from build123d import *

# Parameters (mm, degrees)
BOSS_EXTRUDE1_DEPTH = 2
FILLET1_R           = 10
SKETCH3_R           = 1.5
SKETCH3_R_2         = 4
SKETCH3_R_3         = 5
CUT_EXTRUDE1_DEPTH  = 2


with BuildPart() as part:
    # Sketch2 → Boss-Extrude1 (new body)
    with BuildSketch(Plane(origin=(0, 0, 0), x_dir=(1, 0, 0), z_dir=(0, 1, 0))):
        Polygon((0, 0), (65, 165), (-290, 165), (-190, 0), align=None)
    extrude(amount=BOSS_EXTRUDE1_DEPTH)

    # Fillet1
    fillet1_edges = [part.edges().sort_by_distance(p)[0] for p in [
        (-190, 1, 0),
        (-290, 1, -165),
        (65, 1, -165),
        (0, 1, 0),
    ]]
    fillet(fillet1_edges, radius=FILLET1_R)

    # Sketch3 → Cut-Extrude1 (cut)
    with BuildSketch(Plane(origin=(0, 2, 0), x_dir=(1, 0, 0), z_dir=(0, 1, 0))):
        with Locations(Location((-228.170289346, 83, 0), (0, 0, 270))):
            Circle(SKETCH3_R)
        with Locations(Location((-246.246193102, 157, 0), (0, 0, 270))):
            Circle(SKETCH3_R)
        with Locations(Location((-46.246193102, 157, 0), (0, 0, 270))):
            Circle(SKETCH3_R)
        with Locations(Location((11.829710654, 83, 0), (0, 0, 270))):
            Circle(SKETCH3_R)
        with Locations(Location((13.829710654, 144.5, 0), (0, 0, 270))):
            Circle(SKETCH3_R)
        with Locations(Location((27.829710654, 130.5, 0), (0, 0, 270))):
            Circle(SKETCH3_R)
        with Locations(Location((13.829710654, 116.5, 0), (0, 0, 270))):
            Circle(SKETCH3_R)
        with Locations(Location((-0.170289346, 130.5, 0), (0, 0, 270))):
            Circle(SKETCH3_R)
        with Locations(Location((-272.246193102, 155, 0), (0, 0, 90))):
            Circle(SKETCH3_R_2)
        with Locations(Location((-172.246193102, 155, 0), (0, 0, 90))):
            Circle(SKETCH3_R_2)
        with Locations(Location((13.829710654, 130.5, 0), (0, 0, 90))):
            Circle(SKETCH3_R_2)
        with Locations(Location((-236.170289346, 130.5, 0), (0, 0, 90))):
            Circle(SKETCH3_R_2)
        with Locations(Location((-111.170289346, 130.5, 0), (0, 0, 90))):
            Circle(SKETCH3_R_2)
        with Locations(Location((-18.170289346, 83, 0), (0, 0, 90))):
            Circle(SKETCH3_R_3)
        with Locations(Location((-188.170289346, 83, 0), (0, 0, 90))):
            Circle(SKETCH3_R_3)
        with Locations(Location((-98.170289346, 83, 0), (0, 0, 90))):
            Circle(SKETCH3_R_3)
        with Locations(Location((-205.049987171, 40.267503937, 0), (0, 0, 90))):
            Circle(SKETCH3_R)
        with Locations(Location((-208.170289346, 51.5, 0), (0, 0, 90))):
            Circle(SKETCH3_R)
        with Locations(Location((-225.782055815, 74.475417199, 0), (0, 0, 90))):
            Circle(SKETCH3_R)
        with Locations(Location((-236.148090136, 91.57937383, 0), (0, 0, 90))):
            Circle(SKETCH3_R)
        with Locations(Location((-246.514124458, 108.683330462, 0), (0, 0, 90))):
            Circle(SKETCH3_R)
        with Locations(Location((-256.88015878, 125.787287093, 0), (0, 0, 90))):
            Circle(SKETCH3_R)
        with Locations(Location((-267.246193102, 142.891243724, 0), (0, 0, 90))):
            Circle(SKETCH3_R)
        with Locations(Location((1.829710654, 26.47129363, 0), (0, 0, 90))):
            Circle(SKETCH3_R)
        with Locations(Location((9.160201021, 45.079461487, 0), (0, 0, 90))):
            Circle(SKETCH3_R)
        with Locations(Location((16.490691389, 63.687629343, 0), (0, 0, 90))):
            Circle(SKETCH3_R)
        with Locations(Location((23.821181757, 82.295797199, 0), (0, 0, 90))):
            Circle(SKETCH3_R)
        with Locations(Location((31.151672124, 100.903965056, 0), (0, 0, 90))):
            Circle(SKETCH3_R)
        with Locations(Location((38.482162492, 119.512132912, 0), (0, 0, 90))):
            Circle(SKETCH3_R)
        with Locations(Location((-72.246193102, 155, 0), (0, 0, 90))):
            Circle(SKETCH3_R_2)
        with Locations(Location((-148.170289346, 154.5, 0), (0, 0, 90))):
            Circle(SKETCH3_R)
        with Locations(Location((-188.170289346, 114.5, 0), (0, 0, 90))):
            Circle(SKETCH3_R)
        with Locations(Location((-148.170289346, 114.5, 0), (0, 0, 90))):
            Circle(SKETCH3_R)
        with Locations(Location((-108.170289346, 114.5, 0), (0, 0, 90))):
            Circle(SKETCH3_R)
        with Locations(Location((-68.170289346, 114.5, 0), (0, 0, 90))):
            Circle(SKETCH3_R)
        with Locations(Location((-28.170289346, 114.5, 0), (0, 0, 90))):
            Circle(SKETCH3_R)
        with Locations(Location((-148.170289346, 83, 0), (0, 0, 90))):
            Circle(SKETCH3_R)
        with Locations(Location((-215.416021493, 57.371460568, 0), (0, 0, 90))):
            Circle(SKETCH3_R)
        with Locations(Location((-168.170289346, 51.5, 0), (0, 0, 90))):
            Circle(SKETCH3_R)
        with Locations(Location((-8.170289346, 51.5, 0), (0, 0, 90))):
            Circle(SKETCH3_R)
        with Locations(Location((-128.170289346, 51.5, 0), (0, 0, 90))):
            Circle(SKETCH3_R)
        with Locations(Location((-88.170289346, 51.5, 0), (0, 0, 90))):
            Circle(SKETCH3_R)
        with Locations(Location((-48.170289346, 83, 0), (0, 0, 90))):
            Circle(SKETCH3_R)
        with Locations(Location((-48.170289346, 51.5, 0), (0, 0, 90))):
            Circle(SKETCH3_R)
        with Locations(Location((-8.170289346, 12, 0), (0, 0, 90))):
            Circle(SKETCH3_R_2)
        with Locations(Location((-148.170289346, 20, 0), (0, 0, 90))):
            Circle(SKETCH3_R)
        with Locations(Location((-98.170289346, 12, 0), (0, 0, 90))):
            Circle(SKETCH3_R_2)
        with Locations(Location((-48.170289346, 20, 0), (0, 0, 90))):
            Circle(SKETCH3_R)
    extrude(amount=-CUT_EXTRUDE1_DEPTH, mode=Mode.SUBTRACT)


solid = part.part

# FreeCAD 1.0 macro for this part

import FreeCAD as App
import Part
import Sketcher

V = App.Vector


def edges_at(feature, points):
    """Names of the edges that pass closest to the given points."""
    edges = feature.Shape.Edges
    near = lambda p: min(range(len(edges)), key=lambda i: edges[i].distToShape(Part.Vertex(*p))[0])
    return sorted({f"Edge{near(p) + 1}" for p in points})

doc = App.newDocument("Part")
params = doc.addObject("Spreadsheet::Sheet", "Params")
for row, (alias, value) in enumerate([
    ("sketch1_width", "355 mm"),
    ("sketch1_width2", "190 mm"),
    ("pad1_length", "2 mm"),
    ("fillet_radius", "10 mm"),
    ("sketch2_diameter", "3 mm"),
    ("sketch2_diameter2", "8 mm"),
    ("sketch2_diameter3", "10 mm"),
    ("pocket1_length", "2 mm"),
], start=1):
    params.set(f"A{row}", alias)
    params.set(f"B{row}", "=" + value)
    params.setAlias(f"B{row}", alias)

body = doc.addObject("PartDesign::Body", "Body")

# Sketch on XZ plane
sketch1 = body.newObject("Sketcher::SketchObject", "Sketch")
sketch1.AttachmentSupport = (doc.getObject("XZ_Plane"), [""])
sketch1.MapMode = "FlatFace"
sketch1.addGeometry(Part.LineSegment(V(0, 0, 0), V(65, -165, 0)), False)
sketch1.addGeometry(Part.LineSegment(V(65, -165, 0), V(-290, -165, 0)), False)
sketch1.addGeometry(Part.LineSegment(V(-290, -165, 0), V(-190, 0, 0)), False)
sketch1.addGeometry(Part.LineSegment(V(-190, 0, 0), V(0, 0, 0)), False)
sketch1.addConstraint(Sketcher.Constraint("Coincident", 0, 2, 1, 1))
sketch1.addConstraint(Sketcher.Constraint("Coincident", 1, 2, 2, 1))
sketch1.addConstraint(Sketcher.Constraint("Coincident", 2, 2, 3, 1))
sketch1.addConstraint(Sketcher.Constraint("Coincident", 3, 2, 0, 1))
sketch1.addConstraint(Sketcher.Constraint("Horizontal", 1))
sketch1.addConstraint(Sketcher.Constraint("Horizontal", 3))
sketch1.addConstraint(Sketcher.Constraint("Coincident", 3, 2, -1, 1))
sketch1.addConstraint(Sketcher.Constraint("DistanceX", 1, 2, 1, 1, 355.0))
sketch1.addConstraint(Sketcher.Constraint("DistanceX", 3, 1, 3, 2, 190.0))
sketch1.addConstraint(Sketcher.Constraint("DistanceX", -1, 1, 0, 2, 65.0))
sketch1.addConstraint(Sketcher.Constraint("DistanceY", 0, 2, -1, 1, 165.0))
sketch1.setExpression("Constraints[7]", "Params.sketch1_width")
sketch1.setExpression("Constraints[8]", "Params.sketch1_width2")
pad1 = body.newObject("PartDesign::Pad", "Pad")
pad1.Profile = sketch1
pad1.setExpression("Length", "Params.pad1_length")
pad1.Reversed = True
doc.recompute()

fillet = body.newObject("PartDesign::Fillet", "Fillet")
fillet.Base = (pad1, edges_at(pad1, [
    (-190, 1, 0),
    (-290, 1, -165),
    (65, 1, -165),
    (0, 1, 0),
]))
fillet.setExpression("Radius", "Params.fillet_radius")

# Sketch on XZ plane
sketch2 = body.newObject("Sketcher::SketchObject", "Sketch001")
sketch2.AttachmentSupport = (doc.getObject("XZ_Plane"), [""])
sketch2.MapMode = "FlatFace"
sketch2.AttachmentOffset = App.Placement(V(0, 0, -2), App.Rotation())
sketch2.addGeometry(Part.Circle(V(-228.2, -83, 0), V(0, 0, 1), 1.5), False)
sketch2.addGeometry(Part.Circle(V(-246.2, -157, 0), V(0, 0, 1), 1.5), False)
sketch2.addGeometry(Part.Circle(V(-46.2, -157, 0), V(0, 0, 1), 1.5), False)
sketch2.addGeometry(Part.Circle(V(11.8, -83, 0), V(0, 0, 1), 1.5), False)
sketch2.addGeometry(Part.Circle(V(13.8, -144.5, 0), V(0, 0, 1), 1.5), False)
sketch2.addGeometry(Part.Circle(V(27.8, -130.5, 0), V(0, 0, 1), 1.5), False)
sketch2.addGeometry(Part.Circle(V(13.8, -116.5, 0), V(0, 0, 1), 1.5), False)
sketch2.addGeometry(Part.Circle(V(-0.2, -130.5, 0), V(0, 0, 1), 1.5), False)
sketch2.addGeometry(Part.Circle(V(-272.2, -155, 0), V(0, 0, 1), 4), False)
sketch2.addGeometry(Part.Circle(V(-172.2, -155, 0), V(0, 0, 1), 4), False)
sketch2.addGeometry(Part.Circle(V(13.8, -130.5, 0), V(0, 0, 1), 4), False)
sketch2.addGeometry(Part.Circle(V(-236.2, -130.5, 0), V(0, 0, 1), 4), False)
sketch2.addGeometry(Part.Circle(V(-111.2, -130.5, 0), V(0, 0, 1), 4), False)
sketch2.addGeometry(Part.Circle(V(-18.2, -83, 0), V(0, 0, 1), 5), False)
sketch2.addGeometry(Part.Circle(V(-188.2, -83, 0), V(0, 0, 1), 5), False)
sketch2.addGeometry(Part.Circle(V(-98.2, -83, 0), V(0, 0, 1), 5), False)
sketch2.addGeometry(Part.Circle(V(-205, -40.3, 0), V(0, 0, 1), 1.5), False)
sketch2.addGeometry(Part.Circle(V(-208.2, -51.5, 0), V(0, 0, 1), 1.5), False)
sketch2.addGeometry(Part.Circle(V(-225.8, -74.5, 0), V(0, 0, 1), 1.5), False)
sketch2.addGeometry(Part.Circle(V(-236.1, -91.6, 0), V(0, 0, 1), 1.5), False)
sketch2.addGeometry(Part.Circle(V(-246.5, -108.7, 0), V(0, 0, 1), 1.5), False)
sketch2.addGeometry(Part.Circle(V(-256.9, -125.8, 0), V(0, 0, 1), 1.5), False)
sketch2.addGeometry(Part.Circle(V(-267.2, -142.9, 0), V(0, 0, 1), 1.5), False)
sketch2.addGeometry(Part.Circle(V(1.8, -26.5, 0), V(0, 0, 1), 1.5), False)
sketch2.addGeometry(Part.Circle(V(9.2, -45.1, 0), V(0, 0, 1), 1.5), False)
sketch2.addGeometry(Part.Circle(V(16.5, -63.7, 0), V(0, 0, 1), 1.5), False)
sketch2.addGeometry(Part.Circle(V(23.8, -82.3, 0), V(0, 0, 1), 1.5), False)
sketch2.addGeometry(Part.Circle(V(31.2, -100.9, 0), V(0, 0, 1), 1.5), False)
sketch2.addGeometry(Part.Circle(V(38.5, -119.5, 0), V(0, 0, 1), 1.5), False)
sketch2.addGeometry(Part.Circle(V(-72.2, -155, 0), V(0, 0, 1), 4), False)
sketch2.addGeometry(Part.Circle(V(-148.2, -154.5, 0), V(0, 0, 1), 1.5), False)
sketch2.addGeometry(Part.Circle(V(-188.2, -114.5, 0), V(0, 0, 1), 1.5), False)
sketch2.addGeometry(Part.Circle(V(-148.2, -114.5, 0), V(0, 0, 1), 1.5), False)
sketch2.addGeometry(Part.Circle(V(-108.2, -114.5, 0), V(0, 0, 1), 1.5), False)
sketch2.addGeometry(Part.Circle(V(-68.2, -114.5, 0), V(0, 0, 1), 1.5), False)
sketch2.addGeometry(Part.Circle(V(-28.2, -114.5, 0), V(0, 0, 1), 1.5), False)
sketch2.addGeometry(Part.Circle(V(-148.2, -83, 0), V(0, 0, 1), 1.5), False)
sketch2.addGeometry(Part.Circle(V(-215.4, -57.4, 0), V(0, 0, 1), 1.5), False)
sketch2.addGeometry(Part.Circle(V(-168.2, -51.5, 0), V(0, 0, 1), 1.5), False)
sketch2.addGeometry(Part.Circle(V(-8.2, -51.5, 0), V(0, 0, 1), 1.5), False)
sketch2.addGeometry(Part.Circle(V(-128.2, -51.5, 0), V(0, 0, 1), 1.5), False)
sketch2.addGeometry(Part.Circle(V(-88.2, -51.5, 0), V(0, 0, 1), 1.5), False)
sketch2.addGeometry(Part.Circle(V(-48.2, -83, 0), V(0, 0, 1), 1.5), False)
sketch2.addGeometry(Part.Circle(V(-48.2, -51.5, 0), V(0, 0, 1), 1.5), False)
sketch2.addGeometry(Part.Circle(V(-8.2, -12, 0), V(0, 0, 1), 4), False)
sketch2.addGeometry(Part.Circle(V(-148.2, -20, 0), V(0, 0, 1), 1.5), False)
sketch2.addGeometry(Part.Circle(V(-98.2, -12, 0), V(0, 0, 1), 4), False)
sketch2.addGeometry(Part.Circle(V(-48.2, -20, 0), V(0, 0, 1), 1.5), False)
sketch2.addConstraint(Sketcher.Constraint("Equal", 0, 1))
sketch2.addConstraint(Sketcher.Constraint("Equal", 1, 2))
sketch2.addConstraint(Sketcher.Constraint("Equal", 2, 3))
sketch2.addConstraint(Sketcher.Constraint("Equal", 3, 4))
sketch2.addConstraint(Sketcher.Constraint("Equal", 4, 5))
sketch2.addConstraint(Sketcher.Constraint("Equal", 5, 6))
sketch2.addConstraint(Sketcher.Constraint("Equal", 6, 7))
sketch2.addConstraint(Sketcher.Constraint("Equal", 8, 9))
sketch2.addConstraint(Sketcher.Constraint("Equal", 9, 10))
sketch2.addConstraint(Sketcher.Constraint("Equal", 10, 11))
sketch2.addConstraint(Sketcher.Constraint("Equal", 11, 12))
sketch2.addConstraint(Sketcher.Constraint("Equal", 13, 14))
sketch2.addConstraint(Sketcher.Constraint("Equal", 14, 15))
sketch2.addConstraint(Sketcher.Constraint("Equal", 7, 16))
sketch2.addConstraint(Sketcher.Constraint("Equal", 16, 17))
sketch2.addConstraint(Sketcher.Constraint("Equal", 17, 18))
sketch2.addConstraint(Sketcher.Constraint("Equal", 18, 19))
sketch2.addConstraint(Sketcher.Constraint("Equal", 19, 20))
sketch2.addConstraint(Sketcher.Constraint("Equal", 20, 21))
sketch2.addConstraint(Sketcher.Constraint("Equal", 21, 22))
sketch2.addConstraint(Sketcher.Constraint("Equal", 22, 23))
sketch2.addConstraint(Sketcher.Constraint("Equal", 23, 24))
sketch2.addConstraint(Sketcher.Constraint("Equal", 24, 25))
sketch2.addConstraint(Sketcher.Constraint("Equal", 25, 26))
sketch2.addConstraint(Sketcher.Constraint("Equal", 26, 27))
sketch2.addConstraint(Sketcher.Constraint("Equal", 27, 28))
sketch2.addConstraint(Sketcher.Constraint("Equal", 12, 29))
sketch2.addConstraint(Sketcher.Constraint("Equal", 28, 30))
sketch2.addConstraint(Sketcher.Constraint("Equal", 30, 31))
sketch2.addConstraint(Sketcher.Constraint("Equal", 31, 32))
sketch2.addConstraint(Sketcher.Constraint("Equal", 32, 33))
sketch2.addConstraint(Sketcher.Constraint("Equal", 33, 34))
sketch2.addConstraint(Sketcher.Constraint("Equal", 34, 35))
sketch2.addConstraint(Sketcher.Constraint("Equal", 35, 36))
sketch2.addConstraint(Sketcher.Constraint("Equal", 36, 37))
sketch2.addConstraint(Sketcher.Constraint("Equal", 37, 38))
sketch2.addConstraint(Sketcher.Constraint("Equal", 38, 39))
sketch2.addConstraint(Sketcher.Constraint("Equal", 39, 40))
sketch2.addConstraint(Sketcher.Constraint("Equal", 40, 41))
sketch2.addConstraint(Sketcher.Constraint("Equal", 41, 42))
sketch2.addConstraint(Sketcher.Constraint("Equal", 42, 43))
sketch2.addConstraint(Sketcher.Constraint("Equal", 29, 44))
sketch2.addConstraint(Sketcher.Constraint("Equal", 43, 45))
sketch2.addConstraint(Sketcher.Constraint("Equal", 44, 46))
sketch2.addConstraint(Sketcher.Constraint("Equal", 45, 47))
sketch2.addConstraint(Sketcher.Constraint("Horizontal", 1, 3, 2, 3))
sketch2.addConstraint(Sketcher.Constraint("Horizontal", 0, 3, 3, 3))
sketch2.addConstraint(Sketcher.Constraint("Horizontal", 5, 3, 7, 3))
sketch2.addConstraint(Sketcher.Constraint("Horizontal", 8, 3, 9, 3))
sketch2.addConstraint(Sketcher.Constraint("Horizontal", 7, 3, 10, 3))
sketch2.addConstraint(Sketcher.Constraint("Horizontal", 10, 3, 11, 3))
sketch2.addConstraint(Sketcher.Constraint("Horizontal", 11, 3, 12, 3))
sketch2.addConstraint(Sketcher.Constraint("Horizontal", 3, 3, 13, 3))
sketch2.addConstraint(Sketcher.Constraint("Horizontal", 13, 3, 14, 3))
sketch2.addConstraint(Sketcher.Constraint("Horizontal", 14, 3, 15, 3))
sketch2.addConstraint(Sketcher.Constraint("Horizontal", 9, 3, 29, 3))
sketch2.addConstraint(Sketcher.Constraint("Horizontal", 31, 3, 32, 3))
sketch2.addConstraint(Sketcher.Constraint("Horizontal", 32, 3, 33, 3))
sketch2.addConstraint(Sketcher.Constraint("Horizontal", 33, 3, 34, 3))
sketch2.addConstraint(Sketcher.Constraint("Horizontal", 34, 3, 35, 3))
sketch2.addConstraint(Sketcher.Constraint("Horizontal", 15, 3, 36, 3))
sketch2.addConstraint(Sketcher.Constraint("Horizontal", 17, 3, 38, 3))
sketch2.addConstraint(Sketcher.Constraint("Horizontal", 38, 3, 39, 3))
sketch2.addConstraint(Sketcher.Constraint("Horizontal", 39, 3, 40, 3))
sketch2.addConstraint(Sketcher.Constraint("Horizontal", 40, 3, 41, 3))
sketch2.addConstraint(Sketcher.Constraint("Horizontal", 36, 3, 42, 3))
sketch2.addConstraint(Sketcher.Constraint("Horizontal", 41, 3, 43, 3))
sketch2.addConstraint(Sketcher.Constraint("Horizontal", 44, 3, 46, 3))
sketch2.addConstraint(Sketcher.Constraint("Horizontal", 45, 3, 47, 3))
sketch2.addConstraint(Sketcher.Constraint("Vertical", 4, 3, 6, 3))
sketch2.addConstraint(Sketcher.Constraint("Vertical", 6, 3, 10, 3))
sketch2.addConstraint(Sketcher.Constraint("Vertical", 14, 3, 31, 3))
sketch2.addConstraint(Sketcher.Constraint("Vertical", 30, 3, 32, 3))
sketch2.addConstraint(Sketcher.Constraint("Vertical", 32, 3, 36, 3))
sketch2.addConstraint(Sketcher.Constraint("Vertical", 42, 3, 43, 3))
sketch2.addConstraint(Sketcher.Constraint("Vertical", 39, 3, 44, 3))
sketch2.addConstraint(Sketcher.Constraint("Vertical", 36, 3, 45, 3))
sketch2.addConstraint(Sketcher.Constraint("Vertical", 15, 3, 46, 3))
sketch2.addConstraint(Sketcher.Constraint("Vertical", 43, 3, 47, 3))
sketch2.addConstraint(Sketcher.Constraint("Diameter", 0, 3.0))
sketch2.addConstraint(Sketcher.Constraint("Diameter", 8, 8.0))
sketch2.addConstraint(Sketcher.Constraint("Diameter", 13, 10.0))
sketch2.addConstraint(Sketcher.Constraint("DistanceY", 0, 3, -1, 1, 83.0))
sketch2.addConstraint(Sketcher.Constraint("DistanceY", 1, 3, -1, 1, 157.0))
sketch2.addConstraint(Sketcher.Constraint("DistanceY", 8, 3, -1, 1, 155.0))
sketch2.addConstraint(Sketcher.Constraint("DistanceY", 44, 3, -1, 1, 12.0))
sketch2.addConstraint(Sketcher.Constraint("DistanceY", 45, 3, -1, 1, 20.0))
sketch2.addConstraint(Sketcher.Constraint("DistanceX", 1, 3, 2, 3, 200.0))
sketch2.addConstraint(Sketcher.Constraint("DistanceX", 0, 3, 3, 3, 240.0))
sketch2.addConstraint(Sketcher.Constraint("DistanceX", 3, 3, 4, 3, 2.0))
sketch2.addConstraint(Sketcher.Constraint("DistanceX", 4, 3, 5, 3, 14.0))
sketch2.addConstraint(Sketcher.Constraint("DistanceY", 4, 3, 5, 3, 14.0))
sketch2.addConstraint(Sketcher.Constraint("DistanceY", 5, 3, 6, 3, 14.0))
sketch2.addConstraint(Sketcher.Constraint("DistanceX", 7, 3, 4, 3, 14.0))
sketch2.addConstraint(Sketcher.Constraint("DistanceX", 8, 3, 1, 3, 26.0))
sketch2.addConstraint(Sketcher.Constraint("DistanceX", 1, 3, 9, 3, 74.0))
sketch2.addConstraint(Sketcher.Constraint("DistanceX", 11, 3, 0, 3, 8.0))
sketch2.addConstraint(Sketcher.Constraint("DistanceX", 12, 3, 7, 3, 111.0))
sketch2.addConstraint(Sketcher.Constraint("DistanceX", 13, 3, 3, 3, 30.0))
sketch2.addConstraint(Sketcher.Constraint("DistanceX", 0, 3, 14, 3, 40.0))
sketch2.addConstraint(Sketcher.Constraint("DistanceX", 12, 3, 15, 3, 13.0))
sketch2.addConstraint(Sketcher.Constraint("DistanceX", 0, 3, 17, 3, 20.0))
sketch2.addConstraint(Sketcher.Constraint("DistanceY", 11, 3, 17, 3, 79.0))
sketch2.addConstraint(Sketcher.Constraint("DistanceX", 8, 3, 22, 3, 5.0))
sketch2.addConstraint(Sketcher.Constraint("DistanceX", 23, 3, 3, 3, 10.0))
sketch2.addConstraint(Sketcher.Constraint("DistanceX", 29, 3, 2, 3, 26.0))
sketch2.addConstraint(Sketcher.Constraint("DistanceX", 30, 3, 12, 3, 37.0))
sketch2.addConstraint(Sketcher.Constraint("DistanceY", 30, 3, 12, 3, 24.0))
sketch2.addConstraint(Sketcher.Constraint("DistanceY", 11, 3, 31, 3, 16.0))
sketch2.addConstraint(Sketcher.Constraint("DistanceX", 12, 3, 33, 3, 3.0))
sketch2.addConstraint(Sketcher.Constraint("DistanceX", 33, 3, 34, 3, 40.0))
sketch2.addConstraint(Sketcher.Constraint("DistanceX", 35, 3, 7, 3, 28.0))
sketch2.addConstraint(Sketcher.Constraint("DistanceX", 14, 3, 38, 3, 20.0))
sketch2.addConstraint(Sketcher.Constraint("DistanceX", 39, 3, 23, 3, 10.0))
sketch2.addConstraint(Sketcher.Constraint("DistanceX", 36, 3, 40, 3, 20.0))
sketch2.addConstraint(Sketcher.Constraint("DistanceX", 15, 3, 41, 3, 10.0))
sketch2.addConstraint(Sketcher.Constraint("DistanceX", 42, 3, 13, 3, 30.0))
sketch2.addConstraint(Sketcher.Constraint("DistanceY", 4, 3, -1, 1, 144.5))
sketch2.addConstraint(Sketcher.Constraint("DistanceX", -1, 1, 24, 3, 9.160201))
sketch2.addConstraint(Sketcher.Constraint("DistanceX", 19, 3, 0, 3, 7.977801))
sketch2.addConstraint(Sketcher.Constraint("DistanceX", 0, 3, -1, 1, 228.170289))
sketch2.addConstraint(Sketcher.Constraint("DistanceY", 20, 3, -1, 1, 108.68333))
sketch2.addConstraint(Sketcher.Constraint("DistanceX", 21, 3, -1, 1, 256.880159))
sketch2.addConstraint(Sketcher.Constraint("DistanceY", 24, 3, -1, 1, 45.079461))
sketch2.addConstraint(Sketcher.Constraint("DistanceX", -1, 1, 25, 3, 16.490691))
sketch2.addConstraint(Sketcher.Constraint("DistanceY", 25, 3, -1, 1, 63.687629))
sketch2.addConstraint(Sketcher.Constraint("DistanceX", -1, 1, 26, 3, 23.821182))
sketch2.addConstraint(Sketcher.Constraint("DistanceX", 37, 3, -1, 1, 215.416021))
sketch2.addConstraint(Sketcher.Constraint("DistanceY", 37, 3, -1, 1, 57.371461))
sketch2.addConstraint(Sketcher.Constraint("DistanceX", 18, 3, 16, 3, 20.732069))
sketch2.addConstraint(Sketcher.Constraint("DistanceX", 20, 3, 18, 3, 20.732069))
sketch2.addConstraint(Sketcher.Constraint("DistanceX", 20, 3, 1, 3, 0.267931))
sketch2.addConstraint(Sketcher.Constraint("DistanceX", 26, 3, 27, 3, 7.33049))
sketch2.addConstraint(Sketcher.Constraint("DistanceX", 5, 3, 28, 3, 10.652452))
sketch2.addConstraint(Sketcher.Constraint("DistanceX", 1, 3, -1, 1, 246.246193))
sketch2.addConstraint(Sketcher.Constraint("DistanceY", 16, 3, -1, 1, 40.267504))
sketch2.addConstraint(Sketcher.Constraint("DistanceY", 18, 3, -1, 1, 74.475417))
sketch2.addConstraint(Sketcher.Constraint("DistanceY", 19, 3, -1, 1, 91.579374))
sketch2.addConstraint(Sketcher.Constraint("DistanceY", 21, 3, -1, 1, 125.787287))
sketch2.addConstraint(Sketcher.Constraint("DistanceY", 22, 3, -1, 1, 142.891244))
sketch2.addConstraint(Sketcher.Constraint("DistanceY", 23, 3, -1, 1, 26.471294))
sketch2.addConstraint(Sketcher.Constraint("DistanceY", 26, 3, -1, 1, 82.295797))
sketch2.addConstraint(Sketcher.Constraint("DistanceY", 27, 3, -1, 1, 100.903965))
sketch2.addConstraint(Sketcher.Constraint("DistanceY", 28, 3, -1, 1, 119.512133))
sketch2.setExpression("Constraints[79]", "Params.sketch2_diameter")
sketch2.setExpression("Constraints[80]", "Params.sketch2_diameter2")
sketch2.setExpression("Constraints[81]", "Params.sketch2_diameter3")
pocket1 = body.newObject("PartDesign::Pocket", "Pocket")
pocket1.Profile = sketch2
pocket1.setExpression("Length", "Params.pocket1_length")
pocket1.Reversed = True

doc.recompute()
